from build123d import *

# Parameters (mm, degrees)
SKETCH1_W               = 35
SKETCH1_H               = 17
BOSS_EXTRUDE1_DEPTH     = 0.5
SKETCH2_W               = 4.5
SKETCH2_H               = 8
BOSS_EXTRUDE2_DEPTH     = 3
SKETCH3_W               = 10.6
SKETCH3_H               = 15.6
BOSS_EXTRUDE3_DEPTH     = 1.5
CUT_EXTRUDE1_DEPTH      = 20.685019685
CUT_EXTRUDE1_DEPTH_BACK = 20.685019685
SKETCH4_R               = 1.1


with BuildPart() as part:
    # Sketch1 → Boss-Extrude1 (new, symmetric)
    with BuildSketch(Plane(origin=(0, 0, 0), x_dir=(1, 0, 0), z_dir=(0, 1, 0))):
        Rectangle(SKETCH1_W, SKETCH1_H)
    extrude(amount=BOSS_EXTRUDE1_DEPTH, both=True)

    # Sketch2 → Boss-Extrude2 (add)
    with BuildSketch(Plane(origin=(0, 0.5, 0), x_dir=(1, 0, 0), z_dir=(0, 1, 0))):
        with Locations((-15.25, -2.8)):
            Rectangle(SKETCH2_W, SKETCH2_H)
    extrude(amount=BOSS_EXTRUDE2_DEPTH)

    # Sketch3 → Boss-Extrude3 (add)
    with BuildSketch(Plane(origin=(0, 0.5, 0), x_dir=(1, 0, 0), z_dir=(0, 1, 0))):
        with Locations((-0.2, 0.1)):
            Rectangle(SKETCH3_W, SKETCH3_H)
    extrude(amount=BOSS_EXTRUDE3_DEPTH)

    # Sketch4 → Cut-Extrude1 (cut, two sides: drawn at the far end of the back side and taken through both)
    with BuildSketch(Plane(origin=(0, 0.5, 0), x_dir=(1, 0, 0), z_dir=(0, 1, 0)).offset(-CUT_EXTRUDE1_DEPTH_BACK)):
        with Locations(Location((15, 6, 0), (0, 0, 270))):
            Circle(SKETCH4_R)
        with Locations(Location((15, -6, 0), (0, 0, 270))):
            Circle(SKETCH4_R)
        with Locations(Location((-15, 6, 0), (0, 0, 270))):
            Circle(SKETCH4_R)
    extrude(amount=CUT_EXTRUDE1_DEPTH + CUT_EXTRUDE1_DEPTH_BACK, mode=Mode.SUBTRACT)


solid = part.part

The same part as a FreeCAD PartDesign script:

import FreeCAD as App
import Part
import Sketcher

V = App.Vector


def add_polygon(sketch, points):
    """Adds a closed chain of lines whose ends are joined by coincident constraints."""
    first, n = sketch.GeometryCount, len(points)
    for a, b in zip(points, points[1:] + points[:1]):
        sketch.addGeometry(Part.LineSegment(App.Vector(*a, 0), App.Vector(*b, 0)), False)
    for i in range(n):
        sketch.addConstraint(Sketcher.Constraint("Coincident", first + i, 2, first + (i + 1) % n, 1))

doc = App.newDocument("Part")
body = doc.addObject("PartDesign::Body", "Body")

# Sketch on XZ plane
sketch1 = doc.addObject("Sketcher::SketchObject", "Sketch")
body.addObject(sketch1)
sketch1.AttachmentSupport = (doc.XZ_Plane, [""])
sketch1.MapMode = "FlatFace"
add_polygon(sketch1, [(-18, -8), (-18, 8), (18, 8), (18, -8)])  # lines 0-3
sketch1.addConstraint(Sketcher.Constraint("Vertical", 0))
sketch1.addConstraint(Sketcher.Constraint("Horizontal", 1))
sketch1.addConstraint(Sketcher.Constraint("Vertical", 2))
sketch1.addConstraint(Sketcher.Constraint("Horizontal", 3))
sketch1.addConstraint(Sketcher.Constraint("Symmetric", 0, 2, 2, 2, -1, 1))
sketch1.addConstraint(Sketcher.Constraint("DistanceX", 1, 1, 1, 2, 35.0))
sketch1.addConstraint(Sketcher.Constraint("DistanceY", 0, 1, 0, 2, 17.0))
pad1 = doc.addObject("PartDesign::Pad", "Pad")
body.addObject(pad1)
pad1.Profile = sketch1
pad1.Length = 1
pad1.Midplane = True

# Sketch on XZ plane
sketch2 = doc.addObject("Sketcher::SketchObject", "Sketch001")
body.addObject(sketch2)
sketch2.AttachmentSupport = (doc.XZ_Plane, [""])
sketch2.MapMode = "FlatFace"
sketch2.AttachmentOffset = App.Placement(V(0, 0, -0.5), App.Rotation())
add_polygon(sketch2, [(-17.5, -1.2), (-17.5, 6.8), (-13, 6.8), (-13, -1.2)])  # lines 0-3
sketch2.addConstraint(Sketcher.Constraint("Vertical", 0))
sketch2.addConstraint(Sketcher.Constraint("Horizontal", 1))
sketch2.addConstraint(Sketcher.Constraint("Vertical", 2))
sketch2.addConstraint(Sketcher.Constraint("Horizontal", 3))
sketch2.addConstraint(Sketcher.Constraint("DistanceY", 0, 1, 0, 2, 8.0))
sketch2.addConstraint(Sketcher.Constraint("DistanceX", 1, 1, 1, 2, 4.5))
sketch2.addConstraint(Sketcher.Constraint("DistanceX", 1, 2, -1, 1, 13.0))
sketch2.addConstraint(Sketcher.Constraint("DistanceY", -1, 1, 0, 2, 6.8))
pad2 = doc.addObject("PartDesign::Pad", "Pad001")
body.addObject(pad2)
pad2.Profile = sketch2
pad2.Length = 3
pad2.Reversed = True

# Sketch on XZ plane
sketch3 = doc.addObject("Sketcher::SketchObject", "Sketch002")
body.addObject(sketch3)
sketch3.AttachmentSupport = (doc.XZ_Plane, [""])
sketch3.MapMode = "FlatFace"
sketch3.AttachmentOffset = App.Placement(V(0, 0, -0.5), App.Rotation())
add_polygon(sketch3, [(-6, -8), (-6, 8), (5, 8), (5, -8)])  # lines 0-3
sketch3.addConstraint(Sketcher.Constraint("Vertical", 0))
sketch3.addConstraint(Sketcher.Constraint("Horizontal", 1))
sketch3.addConstraint(Sketcher.Constraint("Vertical", 2))
sketch3.addConstraint(Sketcher.Constraint("Horizontal", 3))
sketch3.addConstraint(Sketcher.Constraint("DistanceX", 1, 1, 1, 2, 10.6))
sketch3.addConstraint(Sketcher.Constraint("DistanceY", 0, 1, 0, 2, 15.6))
sketch3.addConstraint(Sketcher.Constraint("DistanceX", 0, 2, -1, 1, 5.5))
sketch3.addConstraint(Sketcher.Constraint("DistanceY", -1, 1, 0, 2, 7.7))
pad3 = doc.addObject("PartDesign::Pad", "Pad002")
body.addObject(pad3)
pad3.Profile = sketch3
pad3.Length = 1.5
pad3.Reversed = True

# Sketch on XZ plane
sketch4 = doc.addObject("Sketcher::SketchObject", "Sketch003")
body.addObject(sketch4)
sketch4.AttachmentSupport = (doc.XZ_Plane, [""])
sketch4.MapMode = "FlatFace"
sketch4.AttachmentOffset = App.Placement(V(0, 0, -0.5), App.Rotation())
sketch4.addGeometry(Part.Circle(V(15, -6, 0), V(0, 0, 1), 1.1), False)
sketch4.addGeometry(Part.Circle(V(15, 6, 0), V(0, 0, 1), 1.1), False)
sketch4.addGeometry(Part.Circle(V(-15, -6, 0), V(0, 0, 1), 1.1), False)
sketch4.addConstraint(Sketcher.Constraint("Equal", 0, 1))
sketch4.addConstraint(Sketcher.Constraint("Equal", 1, 2))
sketch4.addConstraint(Sketcher.Constraint("Symmetric", 1, 3, 2, 3, -1, 1))
sketch4.addConstraint(Sketcher.Constraint("Symmetric", 0, 3, 2, 3, -2))
sketch4.addConstraint(Sketcher.Constraint("Diameter", 0, 2.2))
sketch4.addConstraint(Sketcher.Constraint("DistanceX", -1, 1, 0, 3, 15.0))
sketch4.addConstraint(Sketcher.Constraint("DistanceY", 0, 3, -1, 1, 6.0))
pocket1 = doc.addObject("PartDesign::Pocket", "Pocket")
body.addObject(pocket1)
pocket1.Profile = sketch4
pocket1.Type = "ThroughAll"
pocket1.Midplane = True

doc.recompute()
